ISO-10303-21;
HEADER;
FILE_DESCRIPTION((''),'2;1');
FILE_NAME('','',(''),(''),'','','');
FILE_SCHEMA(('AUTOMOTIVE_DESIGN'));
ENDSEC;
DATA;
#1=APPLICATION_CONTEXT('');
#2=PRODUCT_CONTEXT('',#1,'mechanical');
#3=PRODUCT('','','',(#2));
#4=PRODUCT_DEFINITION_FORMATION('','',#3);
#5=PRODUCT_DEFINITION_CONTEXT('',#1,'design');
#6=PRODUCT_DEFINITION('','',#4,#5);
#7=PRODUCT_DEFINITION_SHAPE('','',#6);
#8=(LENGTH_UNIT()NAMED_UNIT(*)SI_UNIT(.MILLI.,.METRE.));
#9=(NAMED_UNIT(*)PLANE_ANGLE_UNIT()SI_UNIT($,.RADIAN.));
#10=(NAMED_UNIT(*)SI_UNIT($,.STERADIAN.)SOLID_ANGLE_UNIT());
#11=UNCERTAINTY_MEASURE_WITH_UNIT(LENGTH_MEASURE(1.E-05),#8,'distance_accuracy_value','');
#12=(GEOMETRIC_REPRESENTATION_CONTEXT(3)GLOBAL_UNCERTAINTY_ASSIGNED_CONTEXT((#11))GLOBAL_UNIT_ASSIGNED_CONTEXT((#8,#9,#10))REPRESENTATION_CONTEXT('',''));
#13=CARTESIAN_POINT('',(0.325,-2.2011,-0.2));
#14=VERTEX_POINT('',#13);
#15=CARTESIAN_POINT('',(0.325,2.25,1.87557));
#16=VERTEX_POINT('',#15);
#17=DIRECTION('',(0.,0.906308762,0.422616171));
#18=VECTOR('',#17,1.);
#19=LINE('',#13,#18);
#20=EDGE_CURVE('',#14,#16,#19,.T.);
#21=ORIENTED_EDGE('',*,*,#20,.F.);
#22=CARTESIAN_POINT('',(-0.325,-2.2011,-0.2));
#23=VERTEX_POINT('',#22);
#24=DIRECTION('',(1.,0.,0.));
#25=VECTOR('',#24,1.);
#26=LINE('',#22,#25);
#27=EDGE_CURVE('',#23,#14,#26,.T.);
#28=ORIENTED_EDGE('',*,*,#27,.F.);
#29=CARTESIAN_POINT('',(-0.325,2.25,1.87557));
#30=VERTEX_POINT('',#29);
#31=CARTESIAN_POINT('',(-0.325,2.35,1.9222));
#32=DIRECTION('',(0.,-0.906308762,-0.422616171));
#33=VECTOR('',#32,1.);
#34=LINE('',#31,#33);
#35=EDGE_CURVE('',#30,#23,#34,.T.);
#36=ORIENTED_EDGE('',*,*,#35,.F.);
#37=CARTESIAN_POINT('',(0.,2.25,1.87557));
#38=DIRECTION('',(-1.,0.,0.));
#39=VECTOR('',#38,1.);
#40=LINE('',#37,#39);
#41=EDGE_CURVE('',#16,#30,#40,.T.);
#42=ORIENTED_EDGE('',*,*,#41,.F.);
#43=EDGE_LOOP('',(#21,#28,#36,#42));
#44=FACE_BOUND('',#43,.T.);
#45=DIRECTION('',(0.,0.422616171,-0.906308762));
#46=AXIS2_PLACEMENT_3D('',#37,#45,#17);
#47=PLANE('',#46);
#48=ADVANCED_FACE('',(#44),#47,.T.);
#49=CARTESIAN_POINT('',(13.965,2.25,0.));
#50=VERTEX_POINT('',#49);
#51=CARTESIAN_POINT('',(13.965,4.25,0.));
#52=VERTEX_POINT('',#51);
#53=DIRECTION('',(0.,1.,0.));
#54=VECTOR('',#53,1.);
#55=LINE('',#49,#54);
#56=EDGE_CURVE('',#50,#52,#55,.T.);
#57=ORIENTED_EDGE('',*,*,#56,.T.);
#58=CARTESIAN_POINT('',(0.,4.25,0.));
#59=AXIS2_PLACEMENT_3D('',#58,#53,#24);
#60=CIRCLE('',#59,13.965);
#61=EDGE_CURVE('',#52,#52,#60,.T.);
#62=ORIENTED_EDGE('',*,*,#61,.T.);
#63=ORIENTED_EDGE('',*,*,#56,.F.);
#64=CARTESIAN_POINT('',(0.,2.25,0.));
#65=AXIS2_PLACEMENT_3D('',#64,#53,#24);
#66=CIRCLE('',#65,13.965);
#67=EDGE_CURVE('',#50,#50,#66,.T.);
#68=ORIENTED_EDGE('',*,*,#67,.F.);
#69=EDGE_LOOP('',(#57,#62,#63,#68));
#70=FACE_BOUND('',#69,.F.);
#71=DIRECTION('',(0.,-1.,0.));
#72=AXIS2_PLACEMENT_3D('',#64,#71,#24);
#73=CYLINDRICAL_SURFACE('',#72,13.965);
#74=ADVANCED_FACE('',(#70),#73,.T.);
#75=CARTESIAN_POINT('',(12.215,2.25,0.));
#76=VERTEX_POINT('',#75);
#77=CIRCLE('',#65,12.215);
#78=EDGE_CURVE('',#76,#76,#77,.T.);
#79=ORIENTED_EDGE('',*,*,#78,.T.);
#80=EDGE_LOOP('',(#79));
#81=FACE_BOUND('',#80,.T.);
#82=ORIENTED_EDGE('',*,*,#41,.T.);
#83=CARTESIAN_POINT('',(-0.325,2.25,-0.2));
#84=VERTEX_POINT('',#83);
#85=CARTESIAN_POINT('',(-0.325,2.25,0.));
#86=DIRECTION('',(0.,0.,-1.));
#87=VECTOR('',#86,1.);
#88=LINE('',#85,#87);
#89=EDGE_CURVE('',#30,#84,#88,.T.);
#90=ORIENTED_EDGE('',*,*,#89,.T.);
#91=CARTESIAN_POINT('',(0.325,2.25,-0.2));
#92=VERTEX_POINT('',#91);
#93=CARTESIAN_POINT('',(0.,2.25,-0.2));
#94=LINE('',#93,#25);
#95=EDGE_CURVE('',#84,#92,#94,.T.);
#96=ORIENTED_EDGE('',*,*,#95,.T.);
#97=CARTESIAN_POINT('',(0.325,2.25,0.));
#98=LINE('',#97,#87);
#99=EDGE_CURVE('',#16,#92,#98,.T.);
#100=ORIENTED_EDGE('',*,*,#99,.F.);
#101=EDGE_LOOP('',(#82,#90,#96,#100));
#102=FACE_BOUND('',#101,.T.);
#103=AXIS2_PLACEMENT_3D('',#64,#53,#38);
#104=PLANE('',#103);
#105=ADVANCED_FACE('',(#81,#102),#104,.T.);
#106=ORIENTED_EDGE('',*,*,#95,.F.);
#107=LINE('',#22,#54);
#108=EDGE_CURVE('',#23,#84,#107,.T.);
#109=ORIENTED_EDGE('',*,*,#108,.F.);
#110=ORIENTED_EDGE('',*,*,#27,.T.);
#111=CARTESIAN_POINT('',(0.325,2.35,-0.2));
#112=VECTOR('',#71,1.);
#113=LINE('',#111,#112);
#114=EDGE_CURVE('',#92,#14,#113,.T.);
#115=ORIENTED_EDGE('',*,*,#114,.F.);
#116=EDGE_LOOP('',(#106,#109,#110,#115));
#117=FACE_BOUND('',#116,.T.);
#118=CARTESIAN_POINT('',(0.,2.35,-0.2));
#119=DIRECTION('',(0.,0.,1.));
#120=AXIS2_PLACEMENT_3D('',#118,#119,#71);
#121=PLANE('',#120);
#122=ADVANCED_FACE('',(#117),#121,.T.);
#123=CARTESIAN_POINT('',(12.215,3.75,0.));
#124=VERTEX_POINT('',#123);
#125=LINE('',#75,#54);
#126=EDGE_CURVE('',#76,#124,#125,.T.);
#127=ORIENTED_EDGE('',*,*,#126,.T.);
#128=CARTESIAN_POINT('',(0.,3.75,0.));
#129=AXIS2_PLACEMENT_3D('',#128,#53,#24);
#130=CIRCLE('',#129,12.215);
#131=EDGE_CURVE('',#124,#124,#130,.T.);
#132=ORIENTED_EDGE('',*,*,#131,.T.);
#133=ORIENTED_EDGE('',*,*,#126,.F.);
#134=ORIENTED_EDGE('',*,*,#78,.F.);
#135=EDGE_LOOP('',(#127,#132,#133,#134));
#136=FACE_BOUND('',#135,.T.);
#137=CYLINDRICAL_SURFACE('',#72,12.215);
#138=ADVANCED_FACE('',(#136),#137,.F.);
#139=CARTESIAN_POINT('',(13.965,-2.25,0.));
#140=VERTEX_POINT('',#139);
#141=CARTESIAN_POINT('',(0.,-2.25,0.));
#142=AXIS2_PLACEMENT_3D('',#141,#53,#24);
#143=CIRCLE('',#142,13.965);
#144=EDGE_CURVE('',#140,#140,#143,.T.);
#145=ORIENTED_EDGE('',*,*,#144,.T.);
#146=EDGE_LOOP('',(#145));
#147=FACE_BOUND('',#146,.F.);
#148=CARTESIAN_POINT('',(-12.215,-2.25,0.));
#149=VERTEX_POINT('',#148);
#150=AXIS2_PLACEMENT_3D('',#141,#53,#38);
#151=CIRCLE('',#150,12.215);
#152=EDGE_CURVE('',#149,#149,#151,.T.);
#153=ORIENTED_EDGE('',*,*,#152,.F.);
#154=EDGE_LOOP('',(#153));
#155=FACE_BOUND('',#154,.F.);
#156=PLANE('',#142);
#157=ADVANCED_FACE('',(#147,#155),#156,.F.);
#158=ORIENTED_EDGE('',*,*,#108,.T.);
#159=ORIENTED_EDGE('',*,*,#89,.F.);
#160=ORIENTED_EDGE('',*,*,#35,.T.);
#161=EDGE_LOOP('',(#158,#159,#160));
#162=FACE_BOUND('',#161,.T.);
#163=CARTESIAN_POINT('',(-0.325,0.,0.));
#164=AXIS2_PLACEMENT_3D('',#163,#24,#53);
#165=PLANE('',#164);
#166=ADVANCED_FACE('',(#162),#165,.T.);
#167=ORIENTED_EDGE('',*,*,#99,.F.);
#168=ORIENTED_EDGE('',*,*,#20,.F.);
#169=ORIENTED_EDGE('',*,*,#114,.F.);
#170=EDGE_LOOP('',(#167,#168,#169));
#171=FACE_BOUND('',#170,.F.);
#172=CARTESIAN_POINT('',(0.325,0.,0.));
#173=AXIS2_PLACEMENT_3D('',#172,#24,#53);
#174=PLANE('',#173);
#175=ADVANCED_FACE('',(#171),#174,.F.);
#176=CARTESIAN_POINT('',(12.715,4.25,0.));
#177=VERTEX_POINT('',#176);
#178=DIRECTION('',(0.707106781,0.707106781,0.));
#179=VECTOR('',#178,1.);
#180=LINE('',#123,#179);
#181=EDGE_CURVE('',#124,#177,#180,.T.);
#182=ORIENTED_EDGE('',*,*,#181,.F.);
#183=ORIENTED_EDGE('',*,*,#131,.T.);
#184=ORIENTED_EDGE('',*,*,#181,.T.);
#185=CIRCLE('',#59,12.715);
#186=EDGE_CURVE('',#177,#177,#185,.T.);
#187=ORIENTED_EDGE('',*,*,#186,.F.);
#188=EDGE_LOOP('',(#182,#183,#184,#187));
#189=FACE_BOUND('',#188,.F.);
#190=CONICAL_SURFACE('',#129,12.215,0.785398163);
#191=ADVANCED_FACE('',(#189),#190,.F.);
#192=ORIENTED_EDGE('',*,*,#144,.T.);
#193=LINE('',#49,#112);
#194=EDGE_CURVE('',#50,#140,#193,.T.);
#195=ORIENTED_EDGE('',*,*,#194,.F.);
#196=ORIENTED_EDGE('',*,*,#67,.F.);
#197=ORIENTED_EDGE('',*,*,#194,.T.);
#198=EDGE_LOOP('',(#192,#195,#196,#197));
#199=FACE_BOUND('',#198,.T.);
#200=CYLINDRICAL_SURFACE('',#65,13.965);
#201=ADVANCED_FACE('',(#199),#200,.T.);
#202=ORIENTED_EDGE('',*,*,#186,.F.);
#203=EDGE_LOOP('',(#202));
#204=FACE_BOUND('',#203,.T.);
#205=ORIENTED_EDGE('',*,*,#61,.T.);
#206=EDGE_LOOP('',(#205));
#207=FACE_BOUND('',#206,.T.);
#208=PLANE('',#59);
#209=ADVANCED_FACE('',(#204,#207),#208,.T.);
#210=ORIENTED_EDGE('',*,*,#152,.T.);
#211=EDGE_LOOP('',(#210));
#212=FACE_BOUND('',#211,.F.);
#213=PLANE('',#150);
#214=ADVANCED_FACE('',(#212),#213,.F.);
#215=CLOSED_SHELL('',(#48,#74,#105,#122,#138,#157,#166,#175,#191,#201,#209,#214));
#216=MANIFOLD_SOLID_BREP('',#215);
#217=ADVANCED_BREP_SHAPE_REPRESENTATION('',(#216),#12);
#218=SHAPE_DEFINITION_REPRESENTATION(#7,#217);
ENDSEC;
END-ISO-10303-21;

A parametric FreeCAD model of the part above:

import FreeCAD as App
import Part
import Sketcher

V = App.Vector
Q = App.Units.Quantity


def edges_at(feature, points):
    """Names of the edges that pass closest to the given points."""
    edges = feature.Shape.Edges
    near = lambda p: min(range(len(edges)), key=lambda i: edges[i].distToShape(Part.Vertex(*p))[0])
    return sorted({f"Edge{near(p) + 1}" for p in points})


def add_polygon(sketch, points):
    """Adds a closed chain of lines whose ends are joined by coincident constraints."""
    first, n = sketch.GeometryCount, len(points)
    for a, b in zip(points, points[1:] + points[:1]):
        sketch.addGeometry(Part.LineSegment(App.Vector(*a, 0), App.Vector(*b, 0)), False)
    for i in range(n):
        sketch.addConstraint(Sketcher.Constraint("Coincident", first + i, 2, first + (i + 1) % n, 1))

doc = App.newDocument("Part")
body = doc.addObject("PartDesign::Body", "Body")

sketch1 = doc.addObject("Sketcher::SketchObject", "Sketch")
body.addObject(sketch1)
sketch1.AttachmentSupport = (doc.XZ_Plane, [""])
sketch1.MapMode = "FlatFace"
sketch1.addGeometry(Part.Circle(V(0, 0, 0), V(0, 0, 1), 12), False)
sketch1.addConstraint([
    Sketcher.Constraint("Coincident", 0, 3, -1, 1),
    Sketcher.Constraint("Diameter", 0, 24.43),
])
pad1 = doc.addObject("PartDesign::Pad", "Pad")
body.addObject(pad1)
pad1.Profile = sketch1
pad1.Length = 4.5
pad1.Midplane = True

sketch2 = doc.addObject("Sketcher::SketchObject", "Sketch001")
body.addObject(sketch2)
sketch2.AttachmentSupport = (doc.YZ_Plane, [""])
sketch2.MapMode = "FlatFace"
add_polygon(sketch2, [(2.4, 1.9), (-2.2, -0.2), (2.4, -0.2)])
sketch2.addConstraint([
    Sketcher.Constraint("Horizontal", 1),
    Sketcher.Constraint("Vertical", 2),
    Sketcher.Constraint("Angle", 0, Q("-155.0001 deg")),
    Sketcher.Constraint("DistanceY", 0, 2, -1, 1, 0.2),
    Sketcher.Constraint("DistanceX", 1, 1, 1, 2, 4.551),
    Sketcher.Constraint("DistanceX", -1, 1, 1, 2, 2.35),
])
pocket1 = doc.addObject("PartDesign::Pocket", "Pocket")
body.addObject(pocket1)
pocket1.Profile = sketch2
pocket1.Length = 0.65
pocket1.Midplane = True

sketch3 = doc.addObject("Sketcher::SketchObject", "Sketch002")
body.addObject(sketch3)
sketch3.AttachmentSupport = (doc.XZ_Plane, [""])
sketch3.MapMode = "FlatFace"
sketch3.AttachmentOffset = App.Placement(V(0, 0, -2.25), App.Rotation())
sketch3.addGeometry([
    Part.Circle(V(0, 0, 0), V(0, 0, 1), 14),
    Part.Circle(V(0, 0, 0), V(0, 0, 1), 12),
], False)
sketch3.addConstraint([
    Sketcher.Constraint("Coincident", 0, 3, -1, 1),
    Sketcher.Constraint("Coincident", 1, 3, -1, 1),
    Sketcher.Constraint("Diameter", 0, 27.93),
    Sketcher.Constraint("Diameter", 1, 24.43),
])
pad2 = doc.addObject("PartDesign::Pad", "Pad001")
body.addObject(pad2)
pad2.Profile = sketch3
pad2.Type = "TwoLengths"
pad2.Length = 2
pad2.Length2 = 4.5
pad2.Reversed = True
doc.recompute()

chamfer = doc.addObject("PartDesign::Chamfer", "Chamfer")
body.addObject(chamfer)
chamfer.Base = (pad2, edges_at(pad2, [(-12.215, 4.25, 0)]))
chamfer.Size = 0.5

doc.recompute()
